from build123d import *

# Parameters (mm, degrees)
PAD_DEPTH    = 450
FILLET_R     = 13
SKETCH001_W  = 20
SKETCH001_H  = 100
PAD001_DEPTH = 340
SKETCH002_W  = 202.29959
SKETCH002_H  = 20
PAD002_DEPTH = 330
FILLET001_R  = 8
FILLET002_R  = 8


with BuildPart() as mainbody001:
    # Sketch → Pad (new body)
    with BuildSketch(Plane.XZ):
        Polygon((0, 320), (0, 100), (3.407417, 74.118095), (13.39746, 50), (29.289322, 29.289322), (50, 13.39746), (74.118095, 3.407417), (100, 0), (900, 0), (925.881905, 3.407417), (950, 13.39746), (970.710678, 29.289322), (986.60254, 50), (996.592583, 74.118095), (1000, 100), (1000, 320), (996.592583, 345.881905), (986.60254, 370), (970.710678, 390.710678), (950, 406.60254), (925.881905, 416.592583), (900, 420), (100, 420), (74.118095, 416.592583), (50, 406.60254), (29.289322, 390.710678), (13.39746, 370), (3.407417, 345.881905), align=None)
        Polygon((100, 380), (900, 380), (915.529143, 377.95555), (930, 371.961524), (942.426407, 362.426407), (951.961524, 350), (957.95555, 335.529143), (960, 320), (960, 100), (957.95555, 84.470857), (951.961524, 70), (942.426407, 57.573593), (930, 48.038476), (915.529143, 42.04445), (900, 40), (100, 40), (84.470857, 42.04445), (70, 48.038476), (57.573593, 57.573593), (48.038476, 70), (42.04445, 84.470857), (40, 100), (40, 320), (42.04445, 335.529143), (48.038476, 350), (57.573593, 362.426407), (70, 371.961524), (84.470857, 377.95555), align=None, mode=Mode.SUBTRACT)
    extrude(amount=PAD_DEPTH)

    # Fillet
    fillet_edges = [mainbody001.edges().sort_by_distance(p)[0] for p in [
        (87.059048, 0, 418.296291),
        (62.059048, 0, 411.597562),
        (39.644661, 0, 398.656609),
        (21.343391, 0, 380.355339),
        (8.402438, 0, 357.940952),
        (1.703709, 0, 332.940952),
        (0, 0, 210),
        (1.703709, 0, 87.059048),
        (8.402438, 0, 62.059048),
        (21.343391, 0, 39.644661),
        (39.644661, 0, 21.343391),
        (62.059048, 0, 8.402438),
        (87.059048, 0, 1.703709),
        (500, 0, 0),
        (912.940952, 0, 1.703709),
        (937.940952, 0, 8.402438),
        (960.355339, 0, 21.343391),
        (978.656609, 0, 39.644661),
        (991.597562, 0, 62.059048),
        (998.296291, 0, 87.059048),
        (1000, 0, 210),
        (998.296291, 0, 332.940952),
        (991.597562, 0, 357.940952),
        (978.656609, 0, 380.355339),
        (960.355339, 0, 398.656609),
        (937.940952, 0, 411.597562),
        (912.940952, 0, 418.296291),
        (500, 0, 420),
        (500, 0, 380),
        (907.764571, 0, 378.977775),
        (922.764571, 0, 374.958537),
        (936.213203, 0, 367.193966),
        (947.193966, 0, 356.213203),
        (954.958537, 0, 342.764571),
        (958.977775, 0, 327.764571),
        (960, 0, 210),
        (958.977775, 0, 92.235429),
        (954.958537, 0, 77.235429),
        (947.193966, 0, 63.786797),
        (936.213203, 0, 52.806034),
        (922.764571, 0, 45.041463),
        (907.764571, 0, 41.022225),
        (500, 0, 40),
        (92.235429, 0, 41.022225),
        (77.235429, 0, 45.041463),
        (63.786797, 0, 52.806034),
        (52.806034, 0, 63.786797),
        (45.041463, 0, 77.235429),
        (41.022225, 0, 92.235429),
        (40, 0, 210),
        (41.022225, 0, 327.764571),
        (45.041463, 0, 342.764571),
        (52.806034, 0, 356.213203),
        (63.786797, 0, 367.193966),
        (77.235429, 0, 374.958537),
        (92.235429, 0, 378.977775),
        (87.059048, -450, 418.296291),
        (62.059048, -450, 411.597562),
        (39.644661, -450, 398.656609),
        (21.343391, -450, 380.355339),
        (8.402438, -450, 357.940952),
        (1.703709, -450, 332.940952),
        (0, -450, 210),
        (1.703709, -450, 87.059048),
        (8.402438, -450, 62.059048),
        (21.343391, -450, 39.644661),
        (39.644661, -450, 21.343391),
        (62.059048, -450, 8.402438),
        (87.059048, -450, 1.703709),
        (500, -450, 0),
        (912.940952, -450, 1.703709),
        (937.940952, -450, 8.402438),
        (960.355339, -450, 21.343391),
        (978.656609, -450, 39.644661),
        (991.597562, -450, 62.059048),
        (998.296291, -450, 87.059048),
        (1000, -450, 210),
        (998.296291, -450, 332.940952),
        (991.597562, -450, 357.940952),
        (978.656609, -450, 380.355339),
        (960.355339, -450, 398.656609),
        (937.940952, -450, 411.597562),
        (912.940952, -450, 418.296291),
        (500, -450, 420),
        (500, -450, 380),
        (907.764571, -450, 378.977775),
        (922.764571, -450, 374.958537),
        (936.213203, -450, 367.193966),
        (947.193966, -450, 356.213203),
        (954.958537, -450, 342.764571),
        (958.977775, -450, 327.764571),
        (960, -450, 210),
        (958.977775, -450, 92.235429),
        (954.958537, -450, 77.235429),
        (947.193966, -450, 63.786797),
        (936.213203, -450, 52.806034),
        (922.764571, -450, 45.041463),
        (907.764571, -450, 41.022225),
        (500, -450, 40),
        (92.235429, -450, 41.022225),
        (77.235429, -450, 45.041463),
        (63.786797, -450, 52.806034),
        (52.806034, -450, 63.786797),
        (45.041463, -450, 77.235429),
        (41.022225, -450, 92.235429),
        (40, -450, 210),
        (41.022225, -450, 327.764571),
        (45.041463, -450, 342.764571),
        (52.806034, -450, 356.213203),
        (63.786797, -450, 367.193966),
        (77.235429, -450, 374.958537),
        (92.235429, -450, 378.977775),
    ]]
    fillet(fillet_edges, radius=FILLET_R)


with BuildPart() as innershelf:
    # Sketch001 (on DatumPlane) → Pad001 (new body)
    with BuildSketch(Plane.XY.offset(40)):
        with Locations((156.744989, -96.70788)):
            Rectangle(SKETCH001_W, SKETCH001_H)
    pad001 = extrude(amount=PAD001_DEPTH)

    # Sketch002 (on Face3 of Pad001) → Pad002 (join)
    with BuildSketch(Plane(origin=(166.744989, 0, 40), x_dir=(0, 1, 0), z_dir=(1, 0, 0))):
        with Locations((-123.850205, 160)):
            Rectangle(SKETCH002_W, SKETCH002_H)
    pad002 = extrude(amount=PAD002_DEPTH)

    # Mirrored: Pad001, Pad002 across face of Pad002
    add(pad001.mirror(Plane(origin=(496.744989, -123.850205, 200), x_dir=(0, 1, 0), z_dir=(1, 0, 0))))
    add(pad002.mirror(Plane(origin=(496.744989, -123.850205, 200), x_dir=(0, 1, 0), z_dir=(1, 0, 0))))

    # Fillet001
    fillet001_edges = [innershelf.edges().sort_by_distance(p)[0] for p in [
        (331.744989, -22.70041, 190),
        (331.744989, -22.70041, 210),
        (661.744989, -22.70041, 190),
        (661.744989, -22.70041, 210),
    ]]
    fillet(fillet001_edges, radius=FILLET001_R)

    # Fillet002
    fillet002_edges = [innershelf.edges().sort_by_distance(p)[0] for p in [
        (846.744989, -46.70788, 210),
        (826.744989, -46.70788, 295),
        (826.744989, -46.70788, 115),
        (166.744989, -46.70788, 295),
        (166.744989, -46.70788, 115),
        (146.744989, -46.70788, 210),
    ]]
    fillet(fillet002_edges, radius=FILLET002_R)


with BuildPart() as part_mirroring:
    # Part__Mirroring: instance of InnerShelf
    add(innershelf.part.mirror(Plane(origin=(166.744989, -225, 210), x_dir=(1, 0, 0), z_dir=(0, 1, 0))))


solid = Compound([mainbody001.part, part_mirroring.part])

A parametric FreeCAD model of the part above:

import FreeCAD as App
import Part
import Sketcher
Q = App.Units.Quantity


def edges_at(feature, points):
    """Names of the edges that pass closest to the given points."""
    edges = feature.Shape.Edges
    near = lambda p: min(range(len(edges)), key=lambda i: edges[i].distToShape(Part.Vertex(*p))[0])
    return sorted({f"Edge{near(p) + 1}" for p in points})


def add_polygon(sketch, points):
    """Adds a closed chain of lines whose ends are joined by coincident constraints."""
    first, n = sketch.GeometryCount, len(points)
    for a, b in zip(points, points[1:] + points[:1]):
        sketch.addGeometry(Part.LineSegment(App.Vector(*a, 0), App.Vector(*b, 0)), False)
    for i in range(n):
        sketch.addConstraint(Sketcher.Constraint("Coincident", first + i, 2, first + (i + 1) % n, 1))

doc = App.newDocument("Part")
params = doc.addObject("Spreadsheet::Sheet", "Params")
for row, (alias, value) in enumerate([
    ("sketch1_width", "800 mm"),
    ("sketch1_height", "220 mm"),
    ("pad1_length", "450 mm"),
    ("fillet_radius", "13 mm"),
    ("sketch2_width", "20 mm"),
    ("sketch2_height", "100 mm"),
    ("pad2_length", "340 mm"),
    ("sketch3_height", "20 mm"),
    ("pad3_length", "330 mm"),
    ("fillet2_radius", "8 mm"),
    ("fillet3_radius", "8 mm"),
], start=1):
    params.set(f"A{row}", alias)
    params.set(f"B{row}", "=" + value)
    params.setAlias(f"B{row}", alias)

body = doc.addObject("PartDesign::Body", "Body")

sketch1 = body.newObject("Sketcher::SketchObject", "Sketch")
sketch1.AttachmentSupport = (doc.getObject("XZ_Plane"), [""])
sketch1.MapMode = "FlatFace"
add_polygon(sketch1, [(0, 320), (0, 100), (3.407417, 74.118095), (13.39746, 50), (29.289322, 29.289322), (50, 13.39746), (74.118095, 3.407417), (100, 0), (900, 0), (925.881905, 3.407417), (950, 13.39746), (970.710678, 29.289322), (986.60254, 50), (996.592583, 74.118095), (1000, 100), (1000, 320), (996.592583, 345.881905), (986.60254, 370), (970.710678, 390.710678), (950, 406.60254), (925.881905, 416.592583), (900, 420), (100, 420), (74.118095, 416.592583), (50, 406.60254), (29.289322, 390.710678), (13.39746, 370), (3.407417, 345.881905)])
add_polygon(sketch1, [(84.470857, 377.95555), (100, 380), (900, 380), (915.529143, 377.95555), (930, 371.961524), (942.426407, 362.426407), (951.961524, 350), (957.95555, 335.529143), (960, 320), (960, 100), (957.95555, 84.470857), (951.961524, 70), (942.426407, 57.573593), (930, 48.038476), (915.529143, 42.04445), (900, 40), (100, 40), (84.470857, 42.04445), (70, 48.038476), (57.573593, 57.573593), (48.038476, 70), (42.04445, 84.470857), (40, 100), (40, 320), (42.04445, 335.529143), (48.038476, 350), (57.573593, 362.426407), (70, 371.961524)])
sketch1.addConstraint([
    Sketcher.Constraint("Vertical", 0),
    Sketcher.Constraint("Horizontal", 7),
    Sketcher.Constraint("Vertical", 14),
    Sketcher.Constraint("Horizontal", 21),
    Sketcher.Constraint("Horizontal", 29),
    Sketcher.Constraint("Vertical", 36),
    Sketcher.Constraint("Horizontal", 43),
    Sketcher.Constraint("Vertical", 50),
    Sketcher.Constraint("PointOnObject", 0, 2, -2),
    Sketcher.Constraint("PointOnObject", 6, 2, -1),
    Sketcher.Constraint("Perpendicular", 1, 8),
    Sketcher.Constraint("Perpendicular", 2, 9),
    Sketcher.Constraint("Perpendicular", 3, 10),
    Sketcher.Constraint("Perpendicular", 4, 11),
    Sketcher.Constraint("Perpendicular", 5, 12),
    Sketcher.Constraint("Perpendicular", 6, 13),
    Sketcher.Constraint("Perpendicular", 8, 15),
    Sketcher.Constraint("Perpendicular", 9, 16),
    Sketcher.Constraint("Perpendicular", 10, 17),
    Sketcher.Constraint("Perpendicular", 11, 18),
    Sketcher.Constraint("Perpendicular", 12, 19),
    Sketcher.Constraint("Perpendicular", 13, 20),
    Sketcher.Constraint("Perpendicular", 15, 22),
    Sketcher.Constraint("Perpendicular", 16, 23),
    Sketcher.Constraint("Perpendicular", 17, 24),
    Sketcher.Constraint("Perpendicular", 18, 25),
    Sketcher.Constraint("Perpendicular", 19, 26),
    Sketcher.Constraint("Perpendicular", 20, 27),
    Sketcher.Constraint("Parallel", 22, 28),
    Sketcher.Constraint("Perpendicular", 27, 30),
    Sketcher.Constraint("Perpendicular", 26, 31),
    Sketcher.Constraint("Perpendicular", 25, 32),
    Sketcher.Constraint("Perpendicular", 24, 33),
    Sketcher.Constraint("Perpendicular", 23, 34),
    Sketcher.Constraint("Perpendicular", 28, 35),
    Sketcher.Constraint("Perpendicular", 30, 37),
    Sketcher.Constraint("Perpendicular", 31, 38),
    Sketcher.Constraint("Perpendicular", 32, 39),
    Sketcher.Constraint("Perpendicular", 33, 40),
    Sketcher.Constraint("Perpendicular", 34, 41),
    Sketcher.Constraint("Perpendicular", 35, 42),
    Sketcher.Constraint("Perpendicular", 37, 44),
    Sketcher.Constraint("Perpendicular", 38, 45),
    Sketcher.Constraint("Perpendicular", 39, 46),
    Sketcher.Constraint("Perpendicular", 40, 47),
    Sketcher.Constraint("Perpendicular", 41, 48),
    Sketcher.Constraint("Perpendicular", 42, 49),
    Sketcher.Constraint("Perpendicular", 44, 51),
    Sketcher.Constraint("Perpendicular", 45, 52),
    Sketcher.Constraint("Perpendicular", 46, 53),
    Sketcher.Constraint("Perpendicular", 47, 54),
    Sketcher.Constraint("Perpendicular", 48, 55),
    Sketcher.Constraint("Horizontal", 5, 2, 8, 2),
    Sketcher.Constraint("Horizontal", 4, 2, 9, 2),
    Sketcher.Constraint("Horizontal", 3, 2, 10, 2),
    Sketcher.Constraint("Horizontal", 2, 2, 11, 2),
    Sketcher.Constraint("Horizontal", 1, 2, 12, 2),
    Sketcher.Constraint("Horizontal", 0, 2, 13, 2),
    Sketcher.Constraint("Horizontal", 19, 2, 22, 2),
    Sketcher.Constraint("Horizontal", 18, 2, 23, 2),
    Sketcher.Constraint("Horizontal", 17, 2, 24, 2),
    Sketcher.Constraint("Horizontal", 16, 2, 25, 2),
    Sketcher.Constraint("Horizontal", 15, 2, 26, 2),
    Sketcher.Constraint("Horizontal", 14, 2, 27, 2),
    Sketcher.Constraint("Horizontal", 27, 2, 35, 2),
    Sketcher.Constraint("Horizontal", 13, 2, 36, 2),
    Sketcher.Constraint("Horizontal", 41, 2, 44, 2),
    Sketcher.Constraint("Horizontal", 40, 2, 45, 2),
    Sketcher.Constraint("Horizontal", 39, 2, 46, 2),
    Sketcher.Constraint("Horizontal", 38, 2, 47, 2),
    Sketcher.Constraint("Horizontal", 37, 2, 48, 2),
    Sketcher.Constraint("Horizontal", 36, 2, 49, 2),
    Sketcher.Constraint("Horizontal", 35, 2, 50, 2),
    Sketcher.Constraint("Horizontal", 34, 2, 51, 2),
    Sketcher.Constraint("Horizontal", 33, 2, 52, 2),
    Sketcher.Constraint("Horizontal", 32, 2, 53, 2),
    Sketcher.Constraint("Horizontal", 31, 2, 54, 2),
    Sketcher.Constraint("Horizontal", 30, 2, 55, 2),
    Sketcher.Constraint("Vertical", 12, 2, 15, 2),
    Sketcher.Constraint("Vertical", 11, 2, 16, 2),
    Sketcher.Constraint("Vertical", 10, 2, 17, 2),
    Sketcher.Constraint("Vertical", 9, 2, 18, 2),
    Sketcher.Constraint("Vertical", 8, 2, 19, 2),
    Sketcher.Constraint("Vertical", 7, 2, 20, 2),
    Sketcher.Constraint("Vertical", 6, 2, 21, 2),
    Sketcher.Constraint("Vertical", 5, 2, 22, 2),
    Sketcher.Constraint("Vertical", 4, 2, 23, 2),
    Sketcher.Constraint("Vertical", 21, 2, 28, 2),
    Sketcher.Constraint("Vertical", 20, 2, 29, 2),
    Sketcher.Constraint("Vertical", 34, 2, 37, 2),
    Sketcher.Constraint("Vertical", 33, 2, 38, 2),
    Sketcher.Constraint("Vertical", 32, 2, 39, 2),
    Sketcher.Constraint("Vertical", 31, 2, 40, 2),
    Sketcher.Constraint("Vertical", 30, 2, 41, 2),
    Sketcher.Constraint("Vertical", 29, 2, 42, 2),
    Sketcher.Constraint("Equal", 1, 2),
    Sketcher.Constraint("Equal", 2, 3),
    Sketcher.Constraint("Equal", 3, 4),
    Sketcher.Constraint("Equal", 4, 5),
    Sketcher.Constraint("Equal", 5, 6),
    Sketcher.Constraint("Equal", 30, 31),
    Sketcher.Constraint("Equal", 31, 32),
    Sketcher.Constraint("Equal", 32, 33),
    Sketcher.Constraint("Equal", 33, 34),
    Sketcher.Constraint("Equal", 34, 35),
    Sketcher.Constraint("DistanceX", 7, 1, 7, 2, Q("800 mm")),
    Sketcher.Constraint("DistanceY", 0, 2, 0, 1, Q("220 mm")),
    Sketcher.Constraint("DistanceY", -1, 1, 0, 2, Q("100 mm")),
    Sketcher.Constraint("DistanceY", -1, 1, 2, 2, Q("50 mm")),
    Sketcher.Constraint("DistanceY", -1, 1, 28, 2, Q("380 mm")),
    Sketcher.Constraint("Angle", 1, Q("-82.500001 deg")),
    Sketcher.Constraint("Angle", 2, Q("-67.499998 deg")),
])
sketch1.setExpression("Constraints[161]", "Params.sketch1_width")
sketch1.setExpression("Constraints[162]", "Params.sketch1_height")
pad1 = body.newObject("PartDesign::Pad", "Pad")
pad1.Profile = sketch1
pad1.setExpression("Length", "Params.pad1_length")
doc.recompute()

fillet = body.newObject("PartDesign::Fillet", "Fillet")
fillet.Base = (pad1, edges_at(pad1, [
    (87.059, 0, 418.296),
    (62.059, 0, 411.598),
    (39.645, 0, 398.657),
    (21.343, 0, 380.355),
    (8.402, 0, 357.941),
    (1.704, 0, 332.941),
    (0, 0, 210),
    (1.704, 0, 87.059),
    (8.402, 0, 62.059),
    (21.343, 0, 39.645),
    (39.645, 0, 21.343),
    (62.059, 0, 8.402),
    (87.059, 0, 1.704),
    (500, 0, 0),
    (912.941, 0, 1.704),
    (937.941, 0, 8.402),
    (960.355, 0, 21.343),
    (978.657, 0, 39.645),
    (991.598, 0, 62.059),
    (998.296, 0, 87.059),
    (1000, 0, 210),
    (998.296, 0, 332.941),
    (991.598, 0, 357.941),
    (978.657, 0, 380.355),
    (960.355, 0, 398.657),
    (937.941, 0, 411.598),
    (912.941, 0, 418.296),
    (500, 0, 420),
    (500, 0, 380),
    (907.765, 0, 378.978),
    (922.765, 0, 374.959),
    (936.213, 0, 367.194),
    (947.194, 0, 356.213),
    (954.959, 0, 342.765),
    (958.978, 0, 327.765),
    (960, 0, 210),
    (958.978, 0, 92.235),
    (954.959, 0, 77.235),
    (947.194, 0, 63.787),
    (936.213, 0, 52.806),
    (922.765, 0, 45.041),
    (907.765, 0, 41.022),
    (500, 0, 40),
    (92.235, 0, 41.022),
    (77.235, 0, 45.041),
    (63.787, 0, 52.806),
    (52.806, 0, 63.787),
    (45.041, 0, 77.235),
    (41.022, 0, 92.235),
    (40, 0, 210),
    (41.022, 0, 327.765),
    (45.041, 0, 342.765),
    (52.806, 0, 356.213),
    (63.787, 0, 367.194),
    (77.235, 0, 374.959),
    (92.235, 0, 378.978),
    (87.059, -450, 418.296),
    (62.059, -450, 411.598),
    (39.645, -450, 398.657),
    (21.343, -450, 380.355),
    (8.402, -450, 357.941),
    (1.704, -450, 332.941),
    (0, -450, 210),
    (1.704, -450, 87.059),
    (8.402, -450, 62.059),
    (21.343, -450, 39.645),
    (39.645, -450, 21.343),
    (62.059, -450, 8.402),
    (87.059, -450, 1.704),
    (500, -450, 0),
    (912.941, -450, 1.704),
    (937.941, -450, 8.402),
    (960.355, -450, 21.343),
    (978.657, -450, 39.645),
    (991.598, -450, 62.059),
    (998.296, -450, 87.059),
    (1000, -450, 210),
    (998.296, -450, 332.941),
    (991.598, -450, 357.941),
    (978.657, -450, 380.355),
    (960.355, -450, 398.657),
    (937.941, -450, 411.598),
    (912.941, -450, 418.296),
    (500, -450, 420),
    (500, -450, 380),
    (907.765, -450, 378.978),
    (922.765, -450, 374.959),
    (936.213, -450, 367.194),
    (947.194, -450, 356.213),
    (954.959, -450, 342.765),
    (958.978, -450, 327.765),
    (960, -450, 210),
    (958.978, -450, 92.235),
    (954.959, -450, 77.235),
    (947.194, -450, 63.787),
    (936.213, -450, 52.806),
    (922.765, -450, 45.041),
    (907.765, -450, 41.022),
    (500, -450, 40),
    (92.235, -450, 41.022),
    (77.235, -450, 45.041),
    (63.787, -450, 52.806),
    (52.806, -450, 63.787),
    (45.041, -450, 77.235),
    (41.022, -450, 92.235),
    (40, -450, 210),
    (41.022, -450, 327.765),
    (45.041, -450, 342.765),
    (52.806, -450, 356.213),
    (63.787, -450, 367.194),
    (77.235, -450, 374.959),
    (92.235, -450, 378.978),
]))
fillet.setExpression("Radius", "Params.fillet_radius")
body2 = doc.addObject("PartDesign::Body", "Body001")

sketch2 = body2.newObject("Sketcher::SketchObject", "Sketch001")
sketch2.AttachmentSupport = (doc.getObject("XY_Plane001"), [""])
sketch2.MapMode = "FlatFace"
sketch2.AttachmentOffset = App.Placement(App.Vector(0, 0, 40), App.Rotation())
add_polygon(sketch2, [(146.744989, -46.70788), (146.744989, -146.70788), (166.744989, -146.70788), (166.744989, -46.70788)])
sketch2.addConstraint([
    Sketcher.Constraint("Vertical", 0),
    Sketcher.Constraint("Horizontal", 1),
    Sketcher.Constraint("Vertical", 2),
    Sketcher.Constraint("Horizontal", 3),
    Sketcher.Constraint("DistanceX", 1, 1, 1, 2, Q("20 mm")),
    Sketcher.Constraint("DistanceY", 0, 2, 0, 1, Q("100 mm")),
    Sketcher.Constraint("DistanceX", -1, 1, 0, 2, Q("146.744989 mm")),
    Sketcher.Constraint("DistanceY", 0, 2, -1, 1, Q("146.70788 mm")),
])
sketch2.setExpression("Constraints[8]", "Params.sketch2_width")
sketch2.setExpression("Constraints[9]", "Params.sketch2_height")
pad2 = body2.newObject("PartDesign::Pad", "Pad001")
pad2.Profile = sketch2
pad2.setExpression("Length", "Params.pad2_length")

sketch3 = body2.newObject("Sketcher::SketchObject", "Sketch002")
sketch3.AttachmentSupport = (doc.getObject("YZ_Plane001"), [""])
sketch3.MapMode = "FlatFace"
sketch3.AttachmentOffset = App.Placement(App.Vector(0, 0, 166.744989), App.Rotation())
add_polygon(sketch3, [(-225, 210), (-225, 190), (-22.70041, 190), (-22.70041, 210)])
sketch3.addConstraint([
    Sketcher.Constraint("Vertical", 0),
    Sketcher.Constraint("Horizontal", 1),
    Sketcher.Constraint("Vertical", 2),
    Sketcher.Constraint("Horizontal", 3),
    Sketcher.Constraint("DistanceY", 0, 2, 0, 1, Q("20 mm")),
    Sketcher.Constraint("DistanceX", 0, 2, -1, 1, Q("225 mm")),
    Sketcher.Constraint("DistanceY", -1, 1, 0, 2, Q("190 mm")),
    Sketcher.Constraint("DistanceX", 1, 1, 1, 2, Q("202.29959 mm")),
])
sketch3.setExpression("Constraints[8]", "Params.sketch3_height")
pad3 = body2.newObject("PartDesign::Pad", "Pad002")
pad3.Profile = sketch3
pad3.setExpression("Length", "Params.pad3_length")
doc.recompute()

datumplane = body2.newObject("PartDesign::Plane", "DatumPlane")
datumplane.AttachmentSupport = (doc.getObject("YZ_Plane001"), [""])
datumplane.MapMode = "FlatFace"
datumplane.AttachmentOffset = App.Placement(App.Vector(0, 0, 496.744989), App.Rotation())
mirrored = body2.newObject("PartDesign::Mirrored", "Mirrored")
mirrored.Originals = [pad2, pad3]
mirrored.MirrorPlane = (datumplane, [""])
body2.Tip = mirrored
doc.recompute()

fillet2 = body2.newObject("PartDesign::Fillet", "Fillet001")
fillet2.Base = (mirrored, edges_at(mirrored, [
    (496.745, -22.7, 190),
    (496.745, -22.7, 210),
    (496.745, -22.7, 190),
    (496.745, -22.7, 210),
]))
fillet2.setExpression("Radius", "Params.fillet2_radius")
doc.recompute()

fillet3 = body2.newObject("PartDesign::Fillet", "Fillet002")
fillet3.Base = (fillet2, edges_at(fillet2, [
    (846.745, -46.708, 210),
    (826.745, -46.708, 295),
    (826.745, -46.708, 115),
    (166.745, -46.708, 295),
    (166.745, -46.708, 115),
    (146.745, -46.708, 210),
]))
fillet3.setExpression("Radius", "Params.fillet3_radius")
body3 = doc.addObject("PartDesign::Body", "Body002")
doc.recompute()

mirroring = doc.addObject("Part::Mirroring", "Mirroring")
mirroring.Source = body2
mirroring.Base = App.Vector(166.744989, -225, 210)
mirroring.Normal = App.Vector(0, 1, 0)
body3.BaseFeature = mirroring
doc.recompute()
body2.Visibility = False
mirroring.Visibility = False

doc.recompute()
